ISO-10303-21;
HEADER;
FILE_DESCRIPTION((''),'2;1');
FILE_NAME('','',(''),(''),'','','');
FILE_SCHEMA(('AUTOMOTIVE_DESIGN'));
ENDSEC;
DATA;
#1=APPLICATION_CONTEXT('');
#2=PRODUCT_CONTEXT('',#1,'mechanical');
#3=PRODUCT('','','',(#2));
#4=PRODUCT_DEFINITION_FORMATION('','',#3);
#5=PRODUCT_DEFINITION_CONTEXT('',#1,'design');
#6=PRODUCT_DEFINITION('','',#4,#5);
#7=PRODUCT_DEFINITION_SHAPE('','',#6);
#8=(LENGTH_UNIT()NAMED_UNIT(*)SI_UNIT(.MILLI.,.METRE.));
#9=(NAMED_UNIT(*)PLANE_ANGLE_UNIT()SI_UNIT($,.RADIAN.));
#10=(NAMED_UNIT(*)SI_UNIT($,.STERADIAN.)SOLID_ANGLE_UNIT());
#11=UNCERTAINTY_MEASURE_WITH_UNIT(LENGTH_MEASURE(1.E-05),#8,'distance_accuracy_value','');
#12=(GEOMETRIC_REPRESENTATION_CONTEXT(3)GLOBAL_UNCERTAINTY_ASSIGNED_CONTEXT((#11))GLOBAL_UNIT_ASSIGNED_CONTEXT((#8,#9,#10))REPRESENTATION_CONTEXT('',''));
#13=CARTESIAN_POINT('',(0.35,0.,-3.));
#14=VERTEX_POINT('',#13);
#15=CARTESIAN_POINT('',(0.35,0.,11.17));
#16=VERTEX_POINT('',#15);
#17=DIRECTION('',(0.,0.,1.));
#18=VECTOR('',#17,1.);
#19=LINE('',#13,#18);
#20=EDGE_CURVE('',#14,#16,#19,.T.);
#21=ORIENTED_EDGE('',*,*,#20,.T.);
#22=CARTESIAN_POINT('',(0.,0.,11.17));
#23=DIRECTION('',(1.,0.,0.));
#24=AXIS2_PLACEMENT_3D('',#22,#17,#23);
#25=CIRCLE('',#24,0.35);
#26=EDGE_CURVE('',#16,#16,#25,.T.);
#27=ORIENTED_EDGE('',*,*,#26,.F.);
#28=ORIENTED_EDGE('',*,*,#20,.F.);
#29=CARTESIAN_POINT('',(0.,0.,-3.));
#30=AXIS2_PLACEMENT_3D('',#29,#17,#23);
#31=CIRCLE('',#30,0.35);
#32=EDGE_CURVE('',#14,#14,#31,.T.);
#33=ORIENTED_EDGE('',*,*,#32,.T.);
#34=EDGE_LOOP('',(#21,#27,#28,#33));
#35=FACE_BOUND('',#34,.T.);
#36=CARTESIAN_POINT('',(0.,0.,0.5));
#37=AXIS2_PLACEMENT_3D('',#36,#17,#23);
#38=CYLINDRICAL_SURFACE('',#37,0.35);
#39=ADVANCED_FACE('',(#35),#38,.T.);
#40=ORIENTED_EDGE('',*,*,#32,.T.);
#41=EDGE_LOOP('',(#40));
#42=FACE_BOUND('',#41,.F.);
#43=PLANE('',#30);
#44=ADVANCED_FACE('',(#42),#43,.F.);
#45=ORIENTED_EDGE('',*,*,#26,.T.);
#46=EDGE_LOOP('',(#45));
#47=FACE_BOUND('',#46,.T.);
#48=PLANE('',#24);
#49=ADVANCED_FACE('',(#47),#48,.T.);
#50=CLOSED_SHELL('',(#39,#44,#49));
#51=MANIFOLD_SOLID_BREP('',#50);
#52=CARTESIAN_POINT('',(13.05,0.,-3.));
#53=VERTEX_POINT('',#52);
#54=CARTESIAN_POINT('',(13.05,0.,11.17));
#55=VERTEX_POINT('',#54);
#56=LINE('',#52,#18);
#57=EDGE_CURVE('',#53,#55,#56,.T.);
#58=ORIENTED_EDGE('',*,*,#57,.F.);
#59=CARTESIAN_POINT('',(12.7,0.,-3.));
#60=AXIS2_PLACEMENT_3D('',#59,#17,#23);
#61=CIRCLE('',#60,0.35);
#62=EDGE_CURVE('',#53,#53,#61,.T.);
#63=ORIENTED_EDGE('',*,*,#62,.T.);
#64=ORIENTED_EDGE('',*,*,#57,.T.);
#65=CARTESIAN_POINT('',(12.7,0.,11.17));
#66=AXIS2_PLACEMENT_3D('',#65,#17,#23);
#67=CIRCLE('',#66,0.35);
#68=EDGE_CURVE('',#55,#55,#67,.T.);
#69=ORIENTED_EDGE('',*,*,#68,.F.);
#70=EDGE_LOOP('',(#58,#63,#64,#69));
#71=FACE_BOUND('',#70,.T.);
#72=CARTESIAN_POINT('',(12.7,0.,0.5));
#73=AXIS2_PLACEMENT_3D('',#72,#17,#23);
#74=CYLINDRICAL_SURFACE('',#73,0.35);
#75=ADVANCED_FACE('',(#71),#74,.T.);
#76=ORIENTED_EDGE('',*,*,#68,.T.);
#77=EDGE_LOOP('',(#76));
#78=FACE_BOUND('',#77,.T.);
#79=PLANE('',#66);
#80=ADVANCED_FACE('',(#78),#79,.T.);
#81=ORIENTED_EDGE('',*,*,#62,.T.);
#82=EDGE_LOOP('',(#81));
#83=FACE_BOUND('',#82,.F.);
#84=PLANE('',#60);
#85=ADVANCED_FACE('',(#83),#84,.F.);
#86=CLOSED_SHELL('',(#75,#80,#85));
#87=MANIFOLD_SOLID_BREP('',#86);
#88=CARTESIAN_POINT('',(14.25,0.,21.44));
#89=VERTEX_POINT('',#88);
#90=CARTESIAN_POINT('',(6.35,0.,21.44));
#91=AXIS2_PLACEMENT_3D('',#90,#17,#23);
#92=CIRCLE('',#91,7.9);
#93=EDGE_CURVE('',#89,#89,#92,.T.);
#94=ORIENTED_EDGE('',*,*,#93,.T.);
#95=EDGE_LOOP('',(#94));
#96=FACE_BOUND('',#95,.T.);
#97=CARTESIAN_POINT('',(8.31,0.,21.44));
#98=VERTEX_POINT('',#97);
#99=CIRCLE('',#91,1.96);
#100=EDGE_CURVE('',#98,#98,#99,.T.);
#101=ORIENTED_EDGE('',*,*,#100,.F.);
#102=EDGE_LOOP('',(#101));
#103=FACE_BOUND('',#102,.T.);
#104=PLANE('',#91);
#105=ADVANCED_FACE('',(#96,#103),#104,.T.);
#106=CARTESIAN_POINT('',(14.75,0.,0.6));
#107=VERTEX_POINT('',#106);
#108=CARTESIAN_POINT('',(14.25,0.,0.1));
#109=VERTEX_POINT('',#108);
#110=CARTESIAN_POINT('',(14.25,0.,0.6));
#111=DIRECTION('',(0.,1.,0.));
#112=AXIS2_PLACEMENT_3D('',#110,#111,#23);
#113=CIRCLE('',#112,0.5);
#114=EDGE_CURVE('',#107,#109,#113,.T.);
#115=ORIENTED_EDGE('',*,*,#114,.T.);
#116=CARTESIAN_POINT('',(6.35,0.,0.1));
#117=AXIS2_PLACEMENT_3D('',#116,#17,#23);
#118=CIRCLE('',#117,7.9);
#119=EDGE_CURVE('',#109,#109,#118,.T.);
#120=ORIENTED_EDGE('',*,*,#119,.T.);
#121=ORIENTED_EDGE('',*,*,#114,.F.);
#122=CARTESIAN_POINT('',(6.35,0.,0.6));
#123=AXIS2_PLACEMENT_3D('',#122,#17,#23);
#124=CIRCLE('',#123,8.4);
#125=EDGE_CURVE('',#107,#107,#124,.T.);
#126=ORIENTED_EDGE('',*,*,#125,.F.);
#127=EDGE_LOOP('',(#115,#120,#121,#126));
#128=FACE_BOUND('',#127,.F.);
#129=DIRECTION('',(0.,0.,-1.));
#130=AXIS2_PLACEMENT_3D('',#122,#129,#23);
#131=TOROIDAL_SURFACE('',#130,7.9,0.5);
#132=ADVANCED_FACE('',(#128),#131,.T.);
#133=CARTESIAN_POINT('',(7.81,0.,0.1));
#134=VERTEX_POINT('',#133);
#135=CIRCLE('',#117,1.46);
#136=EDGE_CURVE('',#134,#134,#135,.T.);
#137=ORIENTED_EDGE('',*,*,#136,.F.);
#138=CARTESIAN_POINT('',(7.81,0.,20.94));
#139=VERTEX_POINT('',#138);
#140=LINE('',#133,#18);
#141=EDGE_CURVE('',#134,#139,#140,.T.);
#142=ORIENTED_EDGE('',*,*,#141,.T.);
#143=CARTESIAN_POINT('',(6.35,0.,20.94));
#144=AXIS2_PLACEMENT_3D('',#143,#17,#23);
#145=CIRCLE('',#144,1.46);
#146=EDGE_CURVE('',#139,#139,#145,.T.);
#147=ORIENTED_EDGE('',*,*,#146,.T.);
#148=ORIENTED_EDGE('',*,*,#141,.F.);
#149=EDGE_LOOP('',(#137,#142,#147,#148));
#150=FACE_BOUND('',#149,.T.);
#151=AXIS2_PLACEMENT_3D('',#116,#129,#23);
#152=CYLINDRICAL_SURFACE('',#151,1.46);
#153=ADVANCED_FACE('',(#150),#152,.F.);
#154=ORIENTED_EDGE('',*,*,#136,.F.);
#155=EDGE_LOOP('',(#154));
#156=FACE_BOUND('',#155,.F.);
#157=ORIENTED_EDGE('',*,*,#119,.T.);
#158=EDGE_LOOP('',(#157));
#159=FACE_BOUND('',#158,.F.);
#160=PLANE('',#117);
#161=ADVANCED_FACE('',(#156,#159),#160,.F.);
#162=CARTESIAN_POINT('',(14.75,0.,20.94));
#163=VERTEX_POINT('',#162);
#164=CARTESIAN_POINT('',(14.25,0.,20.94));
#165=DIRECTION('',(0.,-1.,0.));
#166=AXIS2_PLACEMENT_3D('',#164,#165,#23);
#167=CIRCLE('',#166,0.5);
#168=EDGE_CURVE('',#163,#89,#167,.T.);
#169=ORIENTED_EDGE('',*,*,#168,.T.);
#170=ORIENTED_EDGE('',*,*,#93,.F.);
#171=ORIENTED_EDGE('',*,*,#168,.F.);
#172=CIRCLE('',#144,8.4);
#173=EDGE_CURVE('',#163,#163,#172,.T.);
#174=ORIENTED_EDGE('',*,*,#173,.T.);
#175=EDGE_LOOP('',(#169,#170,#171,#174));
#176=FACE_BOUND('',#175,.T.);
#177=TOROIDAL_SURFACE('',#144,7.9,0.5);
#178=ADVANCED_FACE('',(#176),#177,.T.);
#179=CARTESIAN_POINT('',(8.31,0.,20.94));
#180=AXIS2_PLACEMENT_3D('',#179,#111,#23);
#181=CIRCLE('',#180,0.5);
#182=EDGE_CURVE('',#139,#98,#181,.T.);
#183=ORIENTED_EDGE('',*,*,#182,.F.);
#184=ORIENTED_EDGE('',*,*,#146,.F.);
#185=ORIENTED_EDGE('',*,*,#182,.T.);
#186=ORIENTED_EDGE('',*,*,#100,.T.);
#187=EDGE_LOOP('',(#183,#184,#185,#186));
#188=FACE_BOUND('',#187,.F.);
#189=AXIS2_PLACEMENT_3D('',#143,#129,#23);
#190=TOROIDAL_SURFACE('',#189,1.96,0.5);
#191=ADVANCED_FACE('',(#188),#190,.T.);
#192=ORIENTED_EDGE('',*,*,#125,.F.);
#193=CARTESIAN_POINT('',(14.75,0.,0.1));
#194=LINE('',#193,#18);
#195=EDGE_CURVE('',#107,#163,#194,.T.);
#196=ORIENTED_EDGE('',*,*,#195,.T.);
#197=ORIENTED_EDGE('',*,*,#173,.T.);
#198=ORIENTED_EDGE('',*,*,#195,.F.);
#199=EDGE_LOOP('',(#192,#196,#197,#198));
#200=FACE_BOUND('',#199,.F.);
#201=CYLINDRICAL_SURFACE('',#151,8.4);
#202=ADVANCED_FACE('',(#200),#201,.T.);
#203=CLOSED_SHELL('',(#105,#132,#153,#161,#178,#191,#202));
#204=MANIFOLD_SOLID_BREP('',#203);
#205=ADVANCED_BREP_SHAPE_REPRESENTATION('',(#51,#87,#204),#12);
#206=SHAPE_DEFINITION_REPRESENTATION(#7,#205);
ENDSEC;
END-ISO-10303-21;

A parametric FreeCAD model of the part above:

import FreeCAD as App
import Part
import Sketcher

V = App.Vector
Q = App.Units.Quantity


def edges_at(feature, points):
    """Names of the edges that pass closest to the given points."""
    edges = feature.Shape.Edges
    near = lambda p: min(range(len(edges)), key=lambda i: edges[i].distToShape(Part.Vertex(*p))[0])
    return sorted({f"Edge{near(p) + 1}" for p in points})

doc = App.newDocument("Part")
body = doc.addObject("PartDesign::Body", "Body")
body.AllowCompound = True

# Sketch on XY plane
sketch1 = body.newObject("Sketcher::SketchObject", "Sketch")
sketch1.AttachmentSupport = (doc.getObject("XY_Plane"), [""])
sketch1.MapMode = "FlatFace"
sketch1.AttachmentOffset = App.Placement(V(0, 0, 0.5), App.Rotation())
sketch1.addGeometry(Part.Circle(V(0, 0, 0), V(0, 0, 1), 0.35), False)
sketch1.addGeometry(Part.Circle(V(12.7, 0, 0), V(0, 0, 1), 0.35), False)
sketch1.addConstraint(Sketcher.Constraint("Coincident", 0, 3, -1, 1))
sketch1.addConstraint(Sketcher.Constraint("Equal", 0, 1))
sketch1.addConstraint(Sketcher.Constraint("PointOnObject", 1, 3, -1))
sketch1.addConstraint(Sketcher.Constraint("Diameter", 0, Q("0.7 mm")))
sketch1.addConstraint(Sketcher.Constraint("DistanceX", -1, 1, 1, 3, Q("12.7 mm")))
pad1 = body.newObject("PartDesign::Pad", "Pad")
pad1.Profile = sketch1
pad1.Type = "TwoLengths"
pad1.Length = 10.67
pad1.Length2 = 3.5
body2 = doc.addObject("PartDesign::Body", "Body001")

# Sketch on XY plane
sketch2 = body2.newObject("Sketcher::SketchObject", "Sketch001")
sketch2.AttachmentSupport = (doc.getObject("XY_Plane001"), [""])
sketch2.MapMode = "FlatFace"
sketch2.AttachmentOffset = App.Placement(V(0, 0, 0.1), App.Rotation())
sketch2.addGeometry(Part.Circle(V(6.3, 0, 0), V(0, 0, 1), 8.4), False)
sketch2.addGeometry(Part.Circle(V(6.3, 0, 0), V(0, 0, 1), 1.5), False)
sketch2.addConstraint(Sketcher.Constraint("Coincident", 1, 3, 0, 3))
sketch2.addConstraint(Sketcher.Constraint("PointOnObject", 0, 3, -1))
sketch2.addConstraint(Sketcher.Constraint("Diameter", 0, Q("16.8 mm")))
sketch2.addConstraint(Sketcher.Constraint("Diameter", 1, Q("2.92 mm")))
sketch2.addConstraint(Sketcher.Constraint("DistanceX", -1, 1, 0, 3, Q("6.35 mm")))
pad2 = body2.newObject("PartDesign::Pad", "Pad001")
pad2.Profile = sketch2
pad2.Length = 21.34
doc.recompute()

fillet = body2.newObject("PartDesign::Fillet", "Fillet")
fillet.Base = (pad2, edges_at(pad2, [(4.89, 0, 21.44), (-2.05, 0, 21.44), (-2.05, 0, 0.1)]))
fillet.Radius = 0.5

doc.recompute()
